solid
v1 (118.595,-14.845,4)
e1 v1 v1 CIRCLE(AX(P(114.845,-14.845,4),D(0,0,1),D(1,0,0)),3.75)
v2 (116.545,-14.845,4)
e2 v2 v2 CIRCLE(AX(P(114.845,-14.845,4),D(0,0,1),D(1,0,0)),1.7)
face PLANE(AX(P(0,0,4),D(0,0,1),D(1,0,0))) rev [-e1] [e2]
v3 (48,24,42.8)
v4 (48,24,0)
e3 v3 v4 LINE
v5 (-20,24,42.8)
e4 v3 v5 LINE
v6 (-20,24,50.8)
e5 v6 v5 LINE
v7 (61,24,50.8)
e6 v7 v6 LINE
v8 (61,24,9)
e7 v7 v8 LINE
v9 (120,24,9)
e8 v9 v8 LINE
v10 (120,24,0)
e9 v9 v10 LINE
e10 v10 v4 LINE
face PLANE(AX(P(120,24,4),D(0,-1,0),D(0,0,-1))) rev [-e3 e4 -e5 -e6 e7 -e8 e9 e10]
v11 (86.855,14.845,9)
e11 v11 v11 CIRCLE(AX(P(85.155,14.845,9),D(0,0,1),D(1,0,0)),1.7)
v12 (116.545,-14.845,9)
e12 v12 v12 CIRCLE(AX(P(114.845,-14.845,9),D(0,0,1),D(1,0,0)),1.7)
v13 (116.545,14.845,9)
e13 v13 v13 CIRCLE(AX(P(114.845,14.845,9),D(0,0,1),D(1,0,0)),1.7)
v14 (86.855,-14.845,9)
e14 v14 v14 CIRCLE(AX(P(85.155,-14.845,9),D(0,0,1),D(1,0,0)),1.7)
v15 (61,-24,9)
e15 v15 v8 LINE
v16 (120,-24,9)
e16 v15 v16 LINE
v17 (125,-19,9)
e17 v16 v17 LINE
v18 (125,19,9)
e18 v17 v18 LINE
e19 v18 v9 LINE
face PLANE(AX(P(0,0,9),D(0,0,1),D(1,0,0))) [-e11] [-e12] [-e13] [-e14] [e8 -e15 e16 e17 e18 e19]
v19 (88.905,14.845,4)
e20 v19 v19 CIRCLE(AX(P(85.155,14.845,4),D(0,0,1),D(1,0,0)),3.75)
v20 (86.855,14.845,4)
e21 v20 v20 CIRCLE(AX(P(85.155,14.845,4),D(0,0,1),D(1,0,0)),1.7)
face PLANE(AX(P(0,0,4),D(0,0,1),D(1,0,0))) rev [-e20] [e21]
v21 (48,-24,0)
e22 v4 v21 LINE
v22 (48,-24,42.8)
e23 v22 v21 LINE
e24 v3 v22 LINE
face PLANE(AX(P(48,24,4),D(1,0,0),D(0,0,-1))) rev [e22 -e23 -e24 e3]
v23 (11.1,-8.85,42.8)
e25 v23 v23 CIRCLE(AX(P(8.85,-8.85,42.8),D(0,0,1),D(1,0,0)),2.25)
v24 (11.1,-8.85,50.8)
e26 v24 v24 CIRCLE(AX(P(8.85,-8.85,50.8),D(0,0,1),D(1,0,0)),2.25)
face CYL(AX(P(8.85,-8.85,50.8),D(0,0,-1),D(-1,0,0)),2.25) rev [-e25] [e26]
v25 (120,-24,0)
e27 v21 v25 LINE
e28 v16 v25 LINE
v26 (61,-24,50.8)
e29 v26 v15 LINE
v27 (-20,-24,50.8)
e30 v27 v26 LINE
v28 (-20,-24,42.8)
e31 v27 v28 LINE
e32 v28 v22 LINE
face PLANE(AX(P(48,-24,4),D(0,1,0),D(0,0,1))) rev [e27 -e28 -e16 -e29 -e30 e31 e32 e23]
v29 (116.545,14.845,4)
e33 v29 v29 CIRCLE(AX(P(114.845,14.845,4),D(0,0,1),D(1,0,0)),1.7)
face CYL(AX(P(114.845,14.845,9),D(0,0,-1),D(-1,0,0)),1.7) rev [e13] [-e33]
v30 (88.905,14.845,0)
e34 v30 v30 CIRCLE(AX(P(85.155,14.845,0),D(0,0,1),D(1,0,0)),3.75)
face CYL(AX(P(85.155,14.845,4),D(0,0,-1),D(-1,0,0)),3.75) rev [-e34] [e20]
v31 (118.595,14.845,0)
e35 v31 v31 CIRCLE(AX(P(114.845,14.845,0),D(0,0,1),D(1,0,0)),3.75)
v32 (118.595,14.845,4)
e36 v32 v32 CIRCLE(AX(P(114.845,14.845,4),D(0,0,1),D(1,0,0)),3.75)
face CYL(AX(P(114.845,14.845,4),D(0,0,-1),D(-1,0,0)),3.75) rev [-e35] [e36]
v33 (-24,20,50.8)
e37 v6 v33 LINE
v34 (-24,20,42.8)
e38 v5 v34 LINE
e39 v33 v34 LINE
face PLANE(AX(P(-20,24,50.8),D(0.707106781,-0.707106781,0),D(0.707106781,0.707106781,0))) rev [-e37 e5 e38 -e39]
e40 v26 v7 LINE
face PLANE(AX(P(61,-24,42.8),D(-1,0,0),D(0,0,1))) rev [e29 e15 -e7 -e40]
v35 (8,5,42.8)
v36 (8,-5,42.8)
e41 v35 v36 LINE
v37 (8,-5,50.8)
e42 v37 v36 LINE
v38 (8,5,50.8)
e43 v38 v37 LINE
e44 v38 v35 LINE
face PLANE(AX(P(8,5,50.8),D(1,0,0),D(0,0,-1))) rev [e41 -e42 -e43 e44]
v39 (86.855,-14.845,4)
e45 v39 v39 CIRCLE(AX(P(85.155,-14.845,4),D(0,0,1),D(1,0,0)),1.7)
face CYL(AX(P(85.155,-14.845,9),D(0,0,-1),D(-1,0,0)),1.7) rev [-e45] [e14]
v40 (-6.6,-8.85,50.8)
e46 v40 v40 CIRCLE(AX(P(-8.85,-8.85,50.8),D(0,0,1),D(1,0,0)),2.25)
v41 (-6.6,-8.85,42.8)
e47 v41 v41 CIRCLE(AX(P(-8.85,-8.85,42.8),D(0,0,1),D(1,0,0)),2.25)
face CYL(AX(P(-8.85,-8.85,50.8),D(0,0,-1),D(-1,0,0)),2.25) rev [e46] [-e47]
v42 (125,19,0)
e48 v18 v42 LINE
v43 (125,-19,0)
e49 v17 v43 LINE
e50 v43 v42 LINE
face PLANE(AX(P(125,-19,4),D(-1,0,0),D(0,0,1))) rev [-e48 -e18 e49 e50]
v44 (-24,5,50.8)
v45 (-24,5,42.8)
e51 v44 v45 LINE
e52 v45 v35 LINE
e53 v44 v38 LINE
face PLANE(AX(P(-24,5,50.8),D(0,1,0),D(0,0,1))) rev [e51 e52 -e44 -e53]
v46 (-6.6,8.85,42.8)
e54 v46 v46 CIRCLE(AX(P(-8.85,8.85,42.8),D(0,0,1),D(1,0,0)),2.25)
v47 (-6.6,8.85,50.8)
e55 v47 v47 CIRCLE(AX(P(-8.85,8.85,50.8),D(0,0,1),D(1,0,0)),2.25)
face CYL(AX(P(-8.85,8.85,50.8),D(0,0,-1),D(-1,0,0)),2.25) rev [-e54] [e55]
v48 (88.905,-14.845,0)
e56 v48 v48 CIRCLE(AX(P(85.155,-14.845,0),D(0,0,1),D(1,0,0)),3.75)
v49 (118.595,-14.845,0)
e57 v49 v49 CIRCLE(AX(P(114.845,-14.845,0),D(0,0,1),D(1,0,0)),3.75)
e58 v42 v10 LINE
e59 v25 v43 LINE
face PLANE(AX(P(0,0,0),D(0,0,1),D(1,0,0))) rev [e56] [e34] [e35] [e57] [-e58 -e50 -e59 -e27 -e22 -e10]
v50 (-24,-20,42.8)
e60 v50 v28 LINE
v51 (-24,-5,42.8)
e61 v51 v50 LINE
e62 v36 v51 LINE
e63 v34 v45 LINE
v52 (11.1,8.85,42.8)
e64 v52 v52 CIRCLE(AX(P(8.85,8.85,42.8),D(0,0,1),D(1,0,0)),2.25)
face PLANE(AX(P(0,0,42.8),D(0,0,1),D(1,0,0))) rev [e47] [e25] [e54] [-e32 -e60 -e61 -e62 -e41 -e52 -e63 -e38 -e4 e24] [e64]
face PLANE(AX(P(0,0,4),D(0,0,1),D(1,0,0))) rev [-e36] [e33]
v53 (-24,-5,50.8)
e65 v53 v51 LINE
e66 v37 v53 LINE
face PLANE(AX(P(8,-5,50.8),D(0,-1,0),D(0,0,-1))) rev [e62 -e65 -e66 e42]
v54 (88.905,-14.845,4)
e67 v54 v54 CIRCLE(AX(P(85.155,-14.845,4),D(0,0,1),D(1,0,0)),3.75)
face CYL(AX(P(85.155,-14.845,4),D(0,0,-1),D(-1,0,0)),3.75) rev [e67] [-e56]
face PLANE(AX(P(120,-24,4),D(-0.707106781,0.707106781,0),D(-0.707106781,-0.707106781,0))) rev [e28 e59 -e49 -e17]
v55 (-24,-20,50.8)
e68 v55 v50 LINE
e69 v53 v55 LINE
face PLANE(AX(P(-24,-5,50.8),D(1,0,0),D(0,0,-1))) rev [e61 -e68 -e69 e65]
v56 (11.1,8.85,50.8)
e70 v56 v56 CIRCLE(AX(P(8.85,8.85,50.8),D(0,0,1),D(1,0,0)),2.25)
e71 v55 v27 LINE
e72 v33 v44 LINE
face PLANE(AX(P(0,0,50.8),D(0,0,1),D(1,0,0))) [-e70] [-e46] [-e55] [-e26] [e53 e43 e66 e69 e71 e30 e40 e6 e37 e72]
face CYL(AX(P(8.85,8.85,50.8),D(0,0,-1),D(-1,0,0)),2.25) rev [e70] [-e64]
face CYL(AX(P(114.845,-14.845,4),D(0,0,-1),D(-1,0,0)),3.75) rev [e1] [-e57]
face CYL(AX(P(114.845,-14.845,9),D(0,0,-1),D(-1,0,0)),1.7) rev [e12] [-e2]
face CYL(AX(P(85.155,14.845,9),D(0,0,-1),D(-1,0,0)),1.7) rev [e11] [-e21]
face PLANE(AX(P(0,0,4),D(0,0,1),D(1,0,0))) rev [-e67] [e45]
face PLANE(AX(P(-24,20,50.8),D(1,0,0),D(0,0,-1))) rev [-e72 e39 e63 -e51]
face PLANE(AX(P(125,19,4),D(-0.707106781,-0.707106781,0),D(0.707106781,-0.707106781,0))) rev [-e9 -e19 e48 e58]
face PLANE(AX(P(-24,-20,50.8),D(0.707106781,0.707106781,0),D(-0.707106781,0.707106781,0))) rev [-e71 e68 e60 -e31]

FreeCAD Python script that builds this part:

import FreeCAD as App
import Part
import Sketcher

doc = App.newDocument("Part")
body = doc.addObject("PartDesign::Body", "Body")

# Sketch on XY plane
sketch1 = doc.addObject("Sketcher::SketchObject", "Sketch")
body.addObject(sketch1)
sketch1.AttachmentSupport = (doc.XY_Plane, [""])
sketch1.MapMode = "FlatFace"
sketch1.addGeometry([
    Part.LineSegment(App.Vector(48, -24, 0), App.Vector(120, -24, 0)),  # 0
    Part.LineSegment(App.Vector(120, -24, 0), App.Vector(125, -19, 0)),  # 1
    Part.LineSegment(App.Vector(125, -19, 0), App.Vector(125, 19, 0)),  # 2
    Part.LineSegment(App.Vector(125, 19, 0), App.Vector(120, 24, 0)),  # 3
    Part.LineSegment(App.Vector(120, 24, 0), App.Vector(48, 24, 0)),  # 4
    Part.LineSegment(App.Vector(48, 24, 0), App.Vector(48, -24, 0)),  # 5
    Part.Circle(App.Vector(85.2, -14.8, 0), App.Vector(0, 0, 1), 3.8),  # 6
    Part.Circle(App.Vector(114.8, -14.8, 0), App.Vector(0, 0, 1), 3.8),  # 7
    Part.Circle(App.Vector(85.2, 14.8, 0), App.Vector(0, 0, 1), 3.8),  # 8
    Part.Circle(App.Vector(114.8, 14.8, 0), App.Vector(0, 0, 1), 3.8),  # 9
], False)
sketch1.addConstraint([
    Sketcher.Constraint("Coincident", 0, 2, 1, 1),
    Sketcher.Constraint("Coincident", 1, 2, 2, 1),
    Sketcher.Constraint("Coincident", 2, 2, 3, 1),
    Sketcher.Constraint("Coincident", 3, 2, 4, 1),
    Sketcher.Constraint("Coincident", 4, 2, 5, 1),
    Sketcher.Constraint("Coincident", 5, 2, 0, 1),
    Sketcher.Constraint("Horizontal", 0),
    Sketcher.Constraint("Vertical", 2),
    Sketcher.Constraint("Horizontal", 4),
    Sketcher.Constraint("Vertical", 5),
    Sketcher.Constraint("Equal", 6, 7),
    Sketcher.Constraint("Equal", 7, 8),
    Sketcher.Constraint("Equal", 8, 9),
    Sketcher.Constraint("Symmetric", 6, 3, 8, 3, -1),
    Sketcher.Constraint("Symmetric", 7, 3, 9, 3, -1),
    Sketcher.Constraint("Symmetric", 0, 2, 3, 2, -1),
    Sketcher.Constraint("Perpendicular", 1, 3),
    Sketcher.Constraint("Horizontal", 6, 3, 7, 3),
    Sketcher.Constraint("Equal", 1, 3),
    Sketcher.Constraint("Diameter", 6, 7.5),
    Sketcher.Constraint("DistanceX", 0, 1, 0, 2, 72.0),
    Sketcher.Constraint("DistanceY", 2, 1, 2, 2, 38.0),
    Sketcher.Constraint("DistanceY", 5, 2, 5, 1, 48.0),
    Sketcher.Constraint("DistanceX", -1, 1, 0, 2, 120.0),
    Sketcher.Constraint("DistanceX", 6, 3, 7, 3, 29.69),
    Sketcher.Constraint("DistanceY", 6, 3, 8, 3, 29.69),
    Sketcher.Constraint("DistanceX", -1, 1, 6, 3, 85.155),
])
pad1 = doc.addObject("PartDesign::Pad", "Pad")
body.addObject(pad1)
pad1.Profile = sketch1
pad1.Length = 4

# Sketch on XY plane
sketch2 = doc.addObject("Sketcher::SketchObject", "Sketch001")
body.addObject(sketch2)
sketch2.AttachmentSupport = (doc.XY_Plane, [""])
sketch2.MapMode = "FlatFace"
sketch2.AttachmentOffset = App.Placement(App.Vector(0, 0, 4), App.Rotation())
sketch2.addGeometry([
    Part.LineSegment(App.Vector(48, -24, 0), App.Vector(120, -24, 0)),  # 0
    Part.LineSegment(App.Vector(120, -24, 0), App.Vector(125, -19, 0)),  # 1
    Part.LineSegment(App.Vector(125, -19, 0), App.Vector(125, 19, 0)),  # 2
    Part.LineSegment(App.Vector(125, 19, 0), App.Vector(120, 24, 0)),  # 3
    Part.LineSegment(App.Vector(120, 24, 0), App.Vector(48, 24, 0)),  # 4
    Part.LineSegment(App.Vector(48, 24, 0), App.Vector(48, -24, 0)),  # 5
    Part.Circle(App.Vector(85.2, -14.8, 0), App.Vector(0, 0, 1), 1.7),  # 6
    Part.Circle(App.Vector(114.8, -14.8, 0), App.Vector(0, 0, 1), 1.7),  # 7
    Part.Circle(App.Vector(85.2, 14.8, 0), App.Vector(0, 0, 1), 1.7),  # 8
    Part.Circle(App.Vector(114.8, 14.8, 0), App.Vector(0, 0, 1), 1.7),  # 9
], False)
sketch2.addConstraint([
    Sketcher.Constraint("Coincident", 0, 2, 1, 1),
    Sketcher.Constraint("Coincident", 1, 2, 2, 1),
    Sketcher.Constraint("Coincident", 2, 2, 3, 1),
    Sketcher.Constraint("Coincident", 3, 2, 4, 1),
    Sketcher.Constraint("Coincident", 4, 2, 5, 1),
    Sketcher.Constraint("Coincident", 5, 2, 0, 1),
    Sketcher.Constraint("Horizontal", 0),
    Sketcher.Constraint("Vertical", 2),
    Sketcher.Constraint("Horizontal", 4),
    Sketcher.Constraint("Vertical", 5),
    Sketcher.Constraint("Equal", 6, 7),
    Sketcher.Constraint("Equal", 7, 8),
    Sketcher.Constraint("Equal", 8, 9),
    Sketcher.Constraint("Symmetric", 6, 3, 8, 3, -1),
    Sketcher.Constraint("Symmetric", 7, 3, 9, 3, -1),
    Sketcher.Constraint("Symmetric", 0, 2, 3, 2, -1),
    Sketcher.Constraint("Perpendicular", 1, 3),
    Sketcher.Constraint("Horizontal", 6, 3, 7, 3),
    Sketcher.Constraint("Equal", 1, 3),
    Sketcher.Constraint("Diameter", 6, 3.4),
    Sketcher.Constraint("DistanceX", 0, 1, 0, 2, 72.0),
    Sketcher.Constraint("DistanceY", 2, 1, 2, 2, 38.0),
    Sketcher.Constraint("DistanceY", 5, 2, 5, 1, 48.0),
    Sketcher.Constraint("DistanceX", -1, 1, 0, 2, 120.0),
    Sketcher.Constraint("DistanceX", 6, 3, 7, 3, 29.69),
    Sketcher.Constraint("DistanceY", 6, 3, 8, 3, 29.69),
    Sketcher.Constraint("DistanceX", -1, 1, 6, 3, 85.155),
])
pad2 = doc.addObject("PartDesign::Pad", "Pad001")
body.addObject(pad2)
pad2.Profile = sketch2
pad2.Length = 5

# Sketch on XY plane
sketch3 = doc.addObject("Sketcher::SketchObject", "Sketch002")
body.addObject(sketch3)
sketch3.AttachmentSupport = (doc.XY_Plane, [""])
sketch3.MapMode = "FlatFace"
sketch3.AttachmentOffset = App.Placement(App.Vector(0, 0, 9), App.Rotation())
sketch3.addGeometry([
    Part.LineSegment(App.Vector(48, 24, 0), App.Vector(48, -24, 0)),
    Part.LineSegment(App.Vector(48, -24, 0), App.Vector(61, -24, 0)),
    Part.LineSegment(App.Vector(61, -24, 0), App.Vector(61, 24, 0)),
    Part.LineSegment(App.Vector(61, 24, 0), App.Vector(48, 24, 0)),
], False)
sketch3.addConstraint([
    Sketcher.Constraint("Coincident", 0, 2, 1, 1),
    Sketcher.Constraint("Coincident", 1, 2, 2, 1),
    Sketcher.Constraint("Coincident", 2, 2, 3, 1),
    Sketcher.Constraint("Coincident", 3, 2, 0, 1),
    Sketcher.Constraint("Vertical", 0),
    Sketcher.Constraint("Horizontal", 1),
    Sketcher.Constraint("Vertical", 2),
    Sketcher.Constraint("Horizontal", 3),
    Sketcher.Constraint("DistanceX", 1, 1, 1, 2, 13.0),
    Sketcher.Constraint("DistanceY", 0, 2, 0, 1, 48.0),
    Sketcher.Constraint("DistanceX", -1, 1, 0, 2, 48.0),
    Sketcher.Constraint("DistanceY", 0, 2, -1, 1, 24.0),
])
pad3 = doc.addObject("PartDesign::Pad", "Pad002")
body.addObject(pad3)
pad3.Profile = sketch3
pad3.Length = 33.8

# Sketch on XY plane
sketch4 = doc.addObject("Sketcher::SketchObject", "Sketch003")
body.addObject(sketch4)
sketch4.AttachmentSupport = (doc.XY_Plane, [""])
sketch4.MapMode = "FlatFace"
sketch4.AttachmentOffset = App.Placement(App.Vector(0, 0, 42.8), App.Rotation())
sketch4.addGeometry([
    Part.LineSegment(App.Vector(-24, -20, 0), App.Vector(-20, -24, 0)),  # 0
    Part.LineSegment(App.Vector(-20, -24, 0), App.Vector(61, -24, 0)),  # 1
    Part.LineSegment(App.Vector(61, -24, 0), App.Vector(61, 24, 0)),  # 2
    Part.LineSegment(App.Vector(61, 24, 0), App.Vector(-20, 24, 0)),  # 3
    Part.LineSegment(App.Vector(-20, 24, 0), App.Vector(-24, 20, 0)),  # 4
    Part.LineSegment(App.Vector(-24, 20, 0), App.Vector(-24, 5, 0)),  # 5
    Part.LineSegment(App.Vector(-24, 5, 0), App.Vector(8, 5, 0)),  # 6
    Part.LineSegment(App.Vector(8, 5, 0), App.Vector(8, -5, 0)),  # 7
    Part.LineSegment(App.Vector(8, -5, 0), App.Vector(-24, -5, 0)),  # 8
    Part.LineSegment(App.Vector(-24, -5, 0), App.Vector(-24, -20, 0)),  # 9
    Part.Circle(App.Vector(-8.8, -8.8, 0), App.Vector(0, 0, 1), 2.2),  # 10
    Part.Circle(App.Vector(8.8, -8.8, 0), App.Vector(0, 0, 1), 2.2),  # 11
    Part.Circle(App.Vector(-8.8, 8.8, 0), App.Vector(0, 0, 1), 2.2),  # 12
    Part.Circle(App.Vector(8.8, 8.8, 0), App.Vector(0, 0, 1), 2.2),  # 13
], False)
sketch4.addConstraint([
    Sketcher.Constraint("Coincident", 0, 2, 1, 1),
    Sketcher.Constraint("Coincident", 1, 2, 2, 1),
    Sketcher.Constraint("Coincident", 2, 2, 3, 1),
    Sketcher.Constraint("Coincident", 3, 2, 4, 1),
    Sketcher.Constraint("Coincident", 4, 2, 5, 1),
    Sketcher.Constraint("Coincident", 5, 2, 6, 1),
    Sketcher.Constraint("Coincident", 6, 2, 7, 1),
    Sketcher.Constraint("Coincident", 7, 2, 8, 1),
    Sketcher.Constraint("Coincident", 8, 2, 9, 1),
    Sketcher.Constraint("Coincident", 9, 2, 0, 1),
    Sketcher.Constraint("Horizontal", 1),
    Sketcher.Constraint("Vertical", 2),
    Sketcher.Constraint("Horizontal", 3),
    Sketcher.Constraint("Vertical", 5),
    Sketcher.Constraint("Horizontal", 6),
    Sketcher.Constraint("Vertical", 7),
    Sketcher.Constraint("Horizontal", 8),
    Sketcher.Constraint("Vertical", 9),
    Sketcher.Constraint("Equal", 10, 11),
    Sketcher.Constraint("Equal", 11, 12),
    Sketcher.Constraint("Equal", 12, 13),
    Sketcher.Constraint("Symmetric", 11, 3, 12, 3, -1, 1),
    Sketcher.Constraint("Symmetric", 10, 3, 13, 3, -1, 1),
    Sketcher.Constraint("Symmetric", 10, 3, 11, 3, -2),
    Sketcher.Constraint("Symmetric", 0, 2, 3, 2, -1),
    Sketcher.Constraint("Symmetric", 5, 2, 8, 2, -1),
    Sketcher.Constraint("Perpendicular", 0, 4),
    Sketcher.Constraint("Equal", 5, 9),
    Sketcher.Constraint("Diameter", 10, 4.5),
    Sketcher.Constraint("DistanceX", 1, 1, 1, 2, 81.0),
    Sketcher.Constraint("DistanceX", 6, 1, 6, 2, 32.0),
    Sketcher.Constraint("DistanceY", 2, 1, 2, 2, 48.0),
    Sketcher.Constraint("DistanceY", 5, 2, 5, 1, 15.0),
    Sketcher.Constraint("DistanceY", 7, 2, 7, 1, 10.0),
    Sketcher.Constraint("DistanceX", 0, 2, -1, 1, 20.0),
    Sketcher.Constraint("DistanceX", 10, 3, 11, 3, 17.7),
    Sketcher.Constraint("DistanceY", 10, 3, 12, 3, 17.7),
])
pad4 = doc.addObject("PartDesign::Pad", "Pad003")
body.addObject(pad4)
pad4.Profile = sketch4
pad4.Length = 8

doc.recompute()
